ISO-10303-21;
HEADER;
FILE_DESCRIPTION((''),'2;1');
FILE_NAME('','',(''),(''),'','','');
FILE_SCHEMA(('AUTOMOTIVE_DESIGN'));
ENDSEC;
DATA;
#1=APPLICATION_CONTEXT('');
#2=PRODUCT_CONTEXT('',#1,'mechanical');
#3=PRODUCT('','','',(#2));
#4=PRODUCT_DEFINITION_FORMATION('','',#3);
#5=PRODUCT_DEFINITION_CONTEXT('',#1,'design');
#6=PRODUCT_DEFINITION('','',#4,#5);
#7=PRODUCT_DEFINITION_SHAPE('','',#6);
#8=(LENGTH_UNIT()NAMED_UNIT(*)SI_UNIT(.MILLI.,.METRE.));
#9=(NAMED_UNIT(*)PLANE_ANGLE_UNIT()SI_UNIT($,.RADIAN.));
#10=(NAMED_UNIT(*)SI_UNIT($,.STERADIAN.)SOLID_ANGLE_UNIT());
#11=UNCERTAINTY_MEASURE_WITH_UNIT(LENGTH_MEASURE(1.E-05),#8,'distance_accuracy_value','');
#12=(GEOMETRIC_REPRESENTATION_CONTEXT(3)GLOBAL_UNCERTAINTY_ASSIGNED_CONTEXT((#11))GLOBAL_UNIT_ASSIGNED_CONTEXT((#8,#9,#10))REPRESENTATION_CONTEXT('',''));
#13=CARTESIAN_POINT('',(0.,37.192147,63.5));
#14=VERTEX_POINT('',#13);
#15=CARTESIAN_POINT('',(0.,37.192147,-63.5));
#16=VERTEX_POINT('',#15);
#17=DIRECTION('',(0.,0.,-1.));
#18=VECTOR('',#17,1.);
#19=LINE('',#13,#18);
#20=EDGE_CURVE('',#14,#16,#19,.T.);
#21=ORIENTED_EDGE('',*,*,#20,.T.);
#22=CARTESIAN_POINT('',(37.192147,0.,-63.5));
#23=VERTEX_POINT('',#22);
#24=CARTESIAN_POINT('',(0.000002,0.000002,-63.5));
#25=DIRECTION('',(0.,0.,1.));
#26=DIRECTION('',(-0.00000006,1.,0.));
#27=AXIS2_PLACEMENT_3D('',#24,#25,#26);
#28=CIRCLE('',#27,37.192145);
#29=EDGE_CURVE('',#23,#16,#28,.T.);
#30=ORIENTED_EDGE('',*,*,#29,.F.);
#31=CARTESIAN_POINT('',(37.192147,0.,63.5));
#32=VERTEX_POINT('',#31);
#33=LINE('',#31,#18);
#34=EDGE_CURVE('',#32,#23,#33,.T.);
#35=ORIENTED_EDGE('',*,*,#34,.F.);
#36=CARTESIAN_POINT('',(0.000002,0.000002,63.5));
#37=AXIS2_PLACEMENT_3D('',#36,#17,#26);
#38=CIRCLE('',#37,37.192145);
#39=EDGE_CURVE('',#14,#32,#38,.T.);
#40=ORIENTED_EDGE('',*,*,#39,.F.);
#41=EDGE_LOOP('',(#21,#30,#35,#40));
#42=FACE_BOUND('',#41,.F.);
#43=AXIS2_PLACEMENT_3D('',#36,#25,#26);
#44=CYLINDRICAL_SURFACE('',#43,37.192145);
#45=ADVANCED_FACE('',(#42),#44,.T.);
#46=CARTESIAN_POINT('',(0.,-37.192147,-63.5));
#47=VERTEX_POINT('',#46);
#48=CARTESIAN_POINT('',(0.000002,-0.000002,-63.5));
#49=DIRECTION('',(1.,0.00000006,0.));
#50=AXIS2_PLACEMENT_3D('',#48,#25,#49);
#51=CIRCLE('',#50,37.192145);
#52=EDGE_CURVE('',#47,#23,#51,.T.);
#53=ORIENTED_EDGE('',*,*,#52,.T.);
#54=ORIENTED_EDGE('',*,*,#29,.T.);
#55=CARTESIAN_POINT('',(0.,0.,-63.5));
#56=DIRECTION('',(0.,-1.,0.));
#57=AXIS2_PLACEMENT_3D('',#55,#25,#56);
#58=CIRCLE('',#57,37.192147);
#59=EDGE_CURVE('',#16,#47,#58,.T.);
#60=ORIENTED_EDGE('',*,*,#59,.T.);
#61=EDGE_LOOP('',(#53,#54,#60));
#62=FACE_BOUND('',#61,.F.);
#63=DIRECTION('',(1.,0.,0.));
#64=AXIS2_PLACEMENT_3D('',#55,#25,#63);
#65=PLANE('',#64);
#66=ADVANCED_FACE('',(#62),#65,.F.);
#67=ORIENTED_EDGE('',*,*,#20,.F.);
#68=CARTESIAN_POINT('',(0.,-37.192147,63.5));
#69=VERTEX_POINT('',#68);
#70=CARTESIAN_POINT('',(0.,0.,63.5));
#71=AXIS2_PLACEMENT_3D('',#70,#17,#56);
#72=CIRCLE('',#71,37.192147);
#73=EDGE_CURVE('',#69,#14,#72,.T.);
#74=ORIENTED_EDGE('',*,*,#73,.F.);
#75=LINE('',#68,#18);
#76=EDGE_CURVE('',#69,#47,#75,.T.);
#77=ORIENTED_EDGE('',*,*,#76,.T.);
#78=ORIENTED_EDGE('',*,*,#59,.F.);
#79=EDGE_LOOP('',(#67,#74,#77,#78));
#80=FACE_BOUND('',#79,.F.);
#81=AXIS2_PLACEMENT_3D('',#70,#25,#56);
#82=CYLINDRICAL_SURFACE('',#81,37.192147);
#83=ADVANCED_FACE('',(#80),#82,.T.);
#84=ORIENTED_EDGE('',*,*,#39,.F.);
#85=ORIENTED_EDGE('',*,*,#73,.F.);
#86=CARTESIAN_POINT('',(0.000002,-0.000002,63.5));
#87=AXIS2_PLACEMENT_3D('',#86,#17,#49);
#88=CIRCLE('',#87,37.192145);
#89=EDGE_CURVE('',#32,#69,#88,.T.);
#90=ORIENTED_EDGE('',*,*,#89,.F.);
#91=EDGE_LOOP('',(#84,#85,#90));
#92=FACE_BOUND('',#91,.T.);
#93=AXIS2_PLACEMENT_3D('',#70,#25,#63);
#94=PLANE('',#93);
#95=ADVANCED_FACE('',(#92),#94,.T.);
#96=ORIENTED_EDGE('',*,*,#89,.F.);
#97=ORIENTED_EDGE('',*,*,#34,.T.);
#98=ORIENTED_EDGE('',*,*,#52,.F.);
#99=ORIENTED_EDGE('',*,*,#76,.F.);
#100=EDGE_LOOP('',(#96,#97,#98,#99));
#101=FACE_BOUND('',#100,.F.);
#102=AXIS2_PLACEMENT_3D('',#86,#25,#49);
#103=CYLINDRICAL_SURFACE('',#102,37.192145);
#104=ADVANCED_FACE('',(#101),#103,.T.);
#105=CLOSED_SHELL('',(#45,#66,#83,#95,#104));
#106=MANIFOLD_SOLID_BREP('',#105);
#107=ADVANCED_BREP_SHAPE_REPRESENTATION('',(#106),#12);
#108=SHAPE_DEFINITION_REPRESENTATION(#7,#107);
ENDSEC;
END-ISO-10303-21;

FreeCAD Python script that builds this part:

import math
import FreeCAD as App
import Part
import Sketcher
Q = App.Units.Quantity

doc = App.newDocument("Part")
params = doc.addObject("Spreadsheet::Sheet", "Params")
for row, (alias, value) in enumerate([
    ("pad1_length", "5 in"),
], start=1):
    params.set(f"A{row}", alias)
    params.set(f"B{row}", "=" + value)
    params.setAlias(f"B{row}", alias)

body = doc.addObject("PartDesign::Body", "Body")

sketch1 = doc.addObject("Sketcher::SketchObject", "Sketch")
body.addObject(sketch1)
sketch1.AttachmentSupport = (doc.XY_Plane, [""])
sketch1.MapMode = "FlatFace"
sketch1.addGeometry(Part.LineSegment(App.Vector(-54, 37, 0), App.Vector(-54, -37, 0)), False)
sketch1.addGeometry(Part.LineSegment(App.Vector(-54, -37, 0), App.Vector(54, -37, 0)), False)
sketch1.addGeometry(Part.LineSegment(App.Vector(54, -37, 0), App.Vector(54, 37, 0)), False)
sketch1.addGeometry(Part.LineSegment(App.Vector(54, 37, 0), App.Vector(-54, 37, 0)), False)
sketch1.addConstraint(Sketcher.Constraint("Coincident", 0, 2, 1, 1))
sketch1.addConstraint(Sketcher.Constraint("Coincident", 1, 2, 2, 1))
sketch1.addConstraint(Sketcher.Constraint("Coincident", 2, 2, 3, 1))
sketch1.addConstraint(Sketcher.Constraint("Coincident", 3, 2, 0, 1))
sketch1.addConstraint(Sketcher.Constraint("Vertical", 0))
sketch1.addConstraint(Sketcher.Constraint("Horizontal", 1))
sketch1.addConstraint(Sketcher.Constraint("Vertical", 2))
sketch1.addConstraint(Sketcher.Constraint("Horizontal", 3))
sketch1.addConstraint(Sketcher.Constraint("Symmetric", 0, 2, 2, 2, -1, 1))
sketch1.addConstraint(Sketcher.Constraint("DistanceX", 1, 1, 1, 2, Q("107.82598 mm")))
sketch1.addConstraint(Sketcher.Constraint("DistanceY", 0, 2, 0, 1, Q("74.384294 mm")))
pad1 = doc.addObject("PartDesign::Pad", "Pad")
body.addObject(pad1)
pad1.Profile = sketch1
pad1.setExpression("Length", "Params.pad1_length")
pad1.Midplane = True

sketch2 = doc.addObject("Sketcher::SketchObject", "Sketch001")
body.addObject(sketch2)
sketch2.AttachmentSupport = (doc.XY_Plane, [""])
sketch2.MapMode = "FlatFace"
sketch2.AttachmentOffset = App.Placement(App.Vector(0, 0, 2.5 * 25.4), App.Rotation())
sketch2.addGeometry(Part.ArcOfCircle(Part.Circle(App.Vector(0, 0, 0), App.Vector(0, 0, 1), 37), math.radians(90), math.radians(270)), False)
sketch2.addGeometry(Part.LineSegment(App.Vector(0, 37, 0), App.Vector(-54, 37, 0)), False)
sketch2.addGeometry(Part.LineSegment(App.Vector(-54, 37, 0), App.Vector(-54, -37, 0)), False)
sketch2.addGeometry(Part.LineSegment(App.Vector(-54, -37, 0), App.Vector(0, -37, 0)), False)
sketch2.addGeometry(Part.ArcOfCircle(Part.Circle(App.Vector(0, 0, 0), App.Vector(0, 0, 1), 37), math.radians(0), math.radians(90)), False)
sketch2.addGeometry(Part.ArcOfCircle(Part.Circle(App.Vector(0, 0, 0), App.Vector(0, 0, 1), 37), math.radians(-90), math.radians(0)), False)
sketch2.addGeometry(Part.LineSegment(App.Vector(0, -37, 0), App.Vector(54, -37, 0)), False)
sketch2.addGeometry(Part.LineSegment(App.Vector(54, -37, 0), App.Vector(54, 37, 0)), False)
sketch2.addGeometry(Part.LineSegment(App.Vector(54, 37, 0), App.Vector(0, 37, 0)), False)
sketch2.addConstraint(Sketcher.Constraint("Tangent", 0, 1, 1, 1))
sketch2.addConstraint(Sketcher.Constraint("Coincident", 1, 2, 2, 1))
sketch2.addConstraint(Sketcher.Constraint("Coincident", 2, 2, 3, 1))
sketch2.addConstraint(Sketcher.Constraint("Tangent", 3, 2, 0, 2))
sketch2.addConstraint(Sketcher.Constraint("Tangent", 4, 1, 5, 2))
sketch2.addConstraint(Sketcher.Constraint("Tangent", 5, 1, 6, 1))
sketch2.addConstraint(Sketcher.Constraint("Coincident", 6, 2, 7, 1))
sketch2.addConstraint(Sketcher.Constraint("Coincident", 7, 2, 8, 1))
sketch2.addConstraint(Sketcher.Constraint("Tangent", 8, 2, 4, 2))
sketch2.addConstraint(Sketcher.Constraint("Horizontal", 1))
sketch2.addConstraint(Sketcher.Constraint("Vertical", 2))
sketch2.addConstraint(Sketcher.Constraint("Horizontal", 3))
sketch2.addConstraint(Sketcher.Constraint("Horizontal", 6))
sketch2.addConstraint(Sketcher.Constraint("Vertical", 7))
sketch2.addConstraint(Sketcher.Constraint("Horizontal", 8))
sketch2.addConstraint(Sketcher.Constraint("Coincident", 0, 3, -1, 1))
sketch2.addConstraint(Sketcher.Constraint("Coincident", 4, 3, -1, 1))
sketch2.addConstraint(Sketcher.Constraint("Coincident", 5, 1, 3, 2))
sketch2.addConstraint(Sketcher.Constraint("PointOnObject", 4, 1, -1))
sketch2.addConstraint(Sketcher.Constraint("Equal", 3, 6))
sketch2.addConstraint(Sketcher.Constraint("Radius", 0, Q("37.192147 mm")))
sketch2.addConstraint(Sketcher.Constraint("DistanceX", 1, 2, 1, 1, Q("53.91299 mm")))
pocket1 = doc.addObject("PartDesign::Pocket", "Pocket")
body.addObject(pocket1)
pocket1.Profile = sketch2
pocket1.Type = "ThroughAll"

doc.recompute()
